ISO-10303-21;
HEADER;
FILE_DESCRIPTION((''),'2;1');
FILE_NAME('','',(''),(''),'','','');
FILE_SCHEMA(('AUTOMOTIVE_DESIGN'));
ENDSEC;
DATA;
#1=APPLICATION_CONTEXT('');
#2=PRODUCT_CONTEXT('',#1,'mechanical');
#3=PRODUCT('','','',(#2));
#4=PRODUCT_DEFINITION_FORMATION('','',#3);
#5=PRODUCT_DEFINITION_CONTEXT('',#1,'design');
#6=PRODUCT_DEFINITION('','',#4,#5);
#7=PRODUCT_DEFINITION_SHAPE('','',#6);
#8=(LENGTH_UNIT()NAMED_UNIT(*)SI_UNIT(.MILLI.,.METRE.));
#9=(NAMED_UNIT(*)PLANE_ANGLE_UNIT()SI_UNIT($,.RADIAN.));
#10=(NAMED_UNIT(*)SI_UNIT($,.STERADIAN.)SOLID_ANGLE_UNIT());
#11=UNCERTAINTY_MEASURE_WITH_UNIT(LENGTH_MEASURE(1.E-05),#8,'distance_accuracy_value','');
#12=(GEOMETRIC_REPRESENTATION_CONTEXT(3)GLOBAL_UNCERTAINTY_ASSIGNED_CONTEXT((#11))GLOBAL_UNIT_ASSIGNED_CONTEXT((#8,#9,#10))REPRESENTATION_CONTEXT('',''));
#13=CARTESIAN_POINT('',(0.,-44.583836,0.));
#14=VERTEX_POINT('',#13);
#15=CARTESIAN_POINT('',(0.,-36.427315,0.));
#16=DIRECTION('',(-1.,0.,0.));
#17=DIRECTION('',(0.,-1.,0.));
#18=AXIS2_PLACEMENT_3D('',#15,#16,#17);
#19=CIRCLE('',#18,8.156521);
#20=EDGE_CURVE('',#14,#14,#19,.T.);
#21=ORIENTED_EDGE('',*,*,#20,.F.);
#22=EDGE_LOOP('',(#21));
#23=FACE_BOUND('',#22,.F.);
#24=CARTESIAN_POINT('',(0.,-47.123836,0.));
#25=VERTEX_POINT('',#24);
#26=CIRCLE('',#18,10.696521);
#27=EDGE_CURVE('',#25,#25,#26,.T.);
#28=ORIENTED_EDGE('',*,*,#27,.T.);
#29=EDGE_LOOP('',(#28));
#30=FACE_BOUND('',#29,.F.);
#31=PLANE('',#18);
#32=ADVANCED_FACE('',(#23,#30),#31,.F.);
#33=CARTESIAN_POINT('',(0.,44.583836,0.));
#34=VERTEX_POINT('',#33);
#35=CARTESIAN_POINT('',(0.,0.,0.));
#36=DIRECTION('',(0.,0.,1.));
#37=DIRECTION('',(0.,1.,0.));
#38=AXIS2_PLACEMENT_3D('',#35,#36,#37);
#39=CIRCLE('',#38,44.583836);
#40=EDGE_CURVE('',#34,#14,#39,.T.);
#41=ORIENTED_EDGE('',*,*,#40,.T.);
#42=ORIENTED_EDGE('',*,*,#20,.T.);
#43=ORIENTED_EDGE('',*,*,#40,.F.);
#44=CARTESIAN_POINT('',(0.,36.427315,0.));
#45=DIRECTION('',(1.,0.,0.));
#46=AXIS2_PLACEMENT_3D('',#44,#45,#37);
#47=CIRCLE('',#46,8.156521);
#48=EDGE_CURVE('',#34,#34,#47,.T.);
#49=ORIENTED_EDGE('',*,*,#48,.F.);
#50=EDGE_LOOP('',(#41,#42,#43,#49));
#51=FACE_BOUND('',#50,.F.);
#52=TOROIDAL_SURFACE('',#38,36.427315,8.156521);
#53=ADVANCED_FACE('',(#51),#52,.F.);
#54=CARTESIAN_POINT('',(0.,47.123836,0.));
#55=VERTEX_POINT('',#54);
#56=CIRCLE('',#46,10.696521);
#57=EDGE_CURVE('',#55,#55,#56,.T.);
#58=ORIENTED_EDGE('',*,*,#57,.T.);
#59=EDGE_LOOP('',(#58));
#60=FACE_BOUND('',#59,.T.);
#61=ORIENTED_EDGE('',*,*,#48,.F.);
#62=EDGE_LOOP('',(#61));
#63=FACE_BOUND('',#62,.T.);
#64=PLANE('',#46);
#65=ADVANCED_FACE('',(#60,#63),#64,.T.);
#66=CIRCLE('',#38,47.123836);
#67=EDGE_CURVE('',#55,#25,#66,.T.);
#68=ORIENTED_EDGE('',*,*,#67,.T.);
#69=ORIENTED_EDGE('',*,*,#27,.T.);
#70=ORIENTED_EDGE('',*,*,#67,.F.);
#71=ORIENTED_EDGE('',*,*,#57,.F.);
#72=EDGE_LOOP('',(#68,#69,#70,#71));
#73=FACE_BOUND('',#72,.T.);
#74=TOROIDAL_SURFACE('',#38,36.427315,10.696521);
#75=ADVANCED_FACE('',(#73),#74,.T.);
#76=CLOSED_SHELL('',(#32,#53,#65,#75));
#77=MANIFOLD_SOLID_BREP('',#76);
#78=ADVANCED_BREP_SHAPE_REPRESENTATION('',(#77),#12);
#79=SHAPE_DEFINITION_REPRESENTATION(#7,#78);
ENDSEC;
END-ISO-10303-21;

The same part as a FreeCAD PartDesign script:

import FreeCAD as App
import Part
import Sketcher
Q = App.Units.Quantity


def faces_at(feature, points):
    """Names of the faces that lie closest to the given points."""
    faces = feature.Shape.Faces
    near = lambda p: min(range(len(faces)), key=lambda i: faces[i].distToShape(Part.Vertex(*p))[0])
    return sorted({f"Face{near(p) + 1}" for p in points})

doc = App.newDocument("Part")
body = doc.addObject("PartDesign::Body", "Body")

# Sketch on YZ plane
sketch1 = doc.addObject("Sketcher::SketchObject", "Sketch")
body.addObject(sketch1)
sketch1.AttachmentSupport = (doc.YZ_Plane, [""])
sketch1.MapMode = "FlatFace"
sketch1.addGeometry(Part.Circle(App.Vector(36, 0, 0), App.Vector(0, 0, 1), 11), False)
sketch1.addConstraint([
    Sketcher.Constraint("PointOnObject", 0, 3, -1),
    Sketcher.Constraint("Diameter", 0, 21.393042),
    Sketcher.Constraint("DistanceX", -1, 1, 0, 3, 36.427315),
])
revolution = doc.addObject("PartDesign::Revolution", "Revolution")
body.addObject(revolution)
revolution.Profile = sketch1
revolution.ReferenceAxis = (sketch1, ["V_Axis"])
revolution.Angle = 180
doc.recompute()

thickness = doc.addObject("PartDesign::Thickness", "Thickness")
body.addObject(thickness)
thickness.Base = (revolution, faces_at(revolution, [(0, -36.427, 0), (0, 36.427, 0)]))
thickness.Value = Q("0.1 in")
thickness.Reversed = True
thickness.Join = "Arc"

doc.recompute()
